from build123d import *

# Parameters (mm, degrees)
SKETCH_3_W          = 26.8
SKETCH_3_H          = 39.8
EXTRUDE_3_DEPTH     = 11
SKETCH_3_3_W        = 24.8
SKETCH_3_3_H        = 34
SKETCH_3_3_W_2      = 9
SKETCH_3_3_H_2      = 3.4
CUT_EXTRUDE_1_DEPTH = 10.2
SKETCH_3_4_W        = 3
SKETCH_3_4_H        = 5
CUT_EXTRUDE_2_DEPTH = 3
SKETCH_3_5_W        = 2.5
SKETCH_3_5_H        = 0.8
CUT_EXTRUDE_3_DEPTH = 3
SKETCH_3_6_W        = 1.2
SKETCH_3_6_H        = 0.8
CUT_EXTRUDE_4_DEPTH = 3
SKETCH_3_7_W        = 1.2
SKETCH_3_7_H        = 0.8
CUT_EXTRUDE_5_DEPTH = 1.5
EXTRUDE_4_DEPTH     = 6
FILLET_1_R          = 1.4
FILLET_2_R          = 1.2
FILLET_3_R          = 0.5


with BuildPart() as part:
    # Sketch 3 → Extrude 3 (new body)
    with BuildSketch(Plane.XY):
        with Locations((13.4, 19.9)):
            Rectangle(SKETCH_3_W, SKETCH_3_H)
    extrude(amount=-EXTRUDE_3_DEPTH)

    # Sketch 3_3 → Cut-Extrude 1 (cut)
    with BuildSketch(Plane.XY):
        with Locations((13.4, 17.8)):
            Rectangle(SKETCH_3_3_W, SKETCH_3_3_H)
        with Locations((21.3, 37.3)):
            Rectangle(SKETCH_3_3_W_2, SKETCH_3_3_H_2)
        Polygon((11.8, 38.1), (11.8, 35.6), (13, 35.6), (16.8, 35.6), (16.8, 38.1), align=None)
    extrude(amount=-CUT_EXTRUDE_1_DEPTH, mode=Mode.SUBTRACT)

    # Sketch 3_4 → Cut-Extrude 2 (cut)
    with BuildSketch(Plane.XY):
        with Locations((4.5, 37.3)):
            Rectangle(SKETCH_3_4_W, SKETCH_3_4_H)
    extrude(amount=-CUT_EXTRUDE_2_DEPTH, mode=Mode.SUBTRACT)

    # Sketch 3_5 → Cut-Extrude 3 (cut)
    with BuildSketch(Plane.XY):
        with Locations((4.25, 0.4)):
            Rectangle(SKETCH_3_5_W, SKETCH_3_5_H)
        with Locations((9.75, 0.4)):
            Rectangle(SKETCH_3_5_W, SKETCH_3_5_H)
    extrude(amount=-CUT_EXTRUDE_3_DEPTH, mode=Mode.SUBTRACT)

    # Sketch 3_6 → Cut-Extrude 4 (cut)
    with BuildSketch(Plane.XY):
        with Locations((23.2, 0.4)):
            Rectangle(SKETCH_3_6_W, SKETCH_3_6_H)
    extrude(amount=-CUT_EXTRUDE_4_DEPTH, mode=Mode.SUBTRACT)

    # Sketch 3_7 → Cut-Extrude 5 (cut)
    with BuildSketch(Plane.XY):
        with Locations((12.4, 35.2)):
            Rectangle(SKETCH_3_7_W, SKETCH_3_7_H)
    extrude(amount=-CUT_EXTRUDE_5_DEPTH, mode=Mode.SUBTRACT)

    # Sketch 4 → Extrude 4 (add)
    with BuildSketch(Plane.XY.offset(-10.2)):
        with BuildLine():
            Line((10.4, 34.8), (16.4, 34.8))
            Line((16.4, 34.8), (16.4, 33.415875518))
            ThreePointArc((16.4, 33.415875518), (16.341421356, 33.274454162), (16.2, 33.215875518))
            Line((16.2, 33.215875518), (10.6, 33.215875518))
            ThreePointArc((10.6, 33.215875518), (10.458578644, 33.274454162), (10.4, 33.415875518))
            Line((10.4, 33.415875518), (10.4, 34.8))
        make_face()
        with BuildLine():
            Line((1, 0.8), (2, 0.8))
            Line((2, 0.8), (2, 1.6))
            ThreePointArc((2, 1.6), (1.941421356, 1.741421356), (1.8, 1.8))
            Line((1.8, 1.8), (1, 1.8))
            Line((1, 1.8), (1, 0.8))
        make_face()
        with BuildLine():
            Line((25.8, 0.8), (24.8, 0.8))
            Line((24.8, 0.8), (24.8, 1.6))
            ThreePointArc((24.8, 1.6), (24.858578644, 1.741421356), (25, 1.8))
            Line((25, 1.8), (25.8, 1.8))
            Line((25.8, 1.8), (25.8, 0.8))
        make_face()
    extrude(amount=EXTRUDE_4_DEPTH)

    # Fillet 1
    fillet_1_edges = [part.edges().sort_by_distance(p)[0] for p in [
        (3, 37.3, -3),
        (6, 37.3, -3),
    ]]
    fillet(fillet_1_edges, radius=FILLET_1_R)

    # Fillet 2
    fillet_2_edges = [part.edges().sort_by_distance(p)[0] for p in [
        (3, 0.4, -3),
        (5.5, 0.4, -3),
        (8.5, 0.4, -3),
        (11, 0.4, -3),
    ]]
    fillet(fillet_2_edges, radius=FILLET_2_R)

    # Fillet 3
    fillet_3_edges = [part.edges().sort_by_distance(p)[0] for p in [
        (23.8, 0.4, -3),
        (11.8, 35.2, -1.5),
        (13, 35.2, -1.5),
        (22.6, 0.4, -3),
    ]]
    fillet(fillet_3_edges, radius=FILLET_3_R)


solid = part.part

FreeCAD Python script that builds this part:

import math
import FreeCAD as App
import Part
import Sketcher


def edges_at(feature, points):
    """Names of the edges that pass closest to the given points."""
    edges = feature.Shape.Edges
    near = lambda p: min(range(len(edges)), key=lambda i: edges[i].distToShape(Part.Vertex(*p))[0])
    return sorted({f"Edge{near(p) + 1}" for p in points})


def add_polygon(sketch, points):
    """Adds a closed chain of lines whose ends are joined by coincident constraints."""
    first, n = sketch.GeometryCount, len(points)
    for a, b in zip(points, points[1:] + points[:1]):
        sketch.addGeometry(Part.LineSegment(App.Vector(*a, 0), App.Vector(*b, 0)), False)
    for i in range(n):
        sketch.addConstraint(Sketcher.Constraint("Coincident", first + i, 2, first + (i + 1) % n, 1))

doc = App.newDocument("Part")
body = doc.addObject("PartDesign::Body", "Body")

sketch1 = body.newObject("Sketcher::SketchObject", "Sketch")
sketch1.AttachmentSupport = (doc.getObject("XY_Plane"), [""])
sketch1.MapMode = "FlatFace"
add_polygon(sketch1, [(0, 39.8), (0, 0), (26.8, 0), (26.8, 39.8)])
sketch1.addConstraint([
    Sketcher.Constraint("Vertical", 0),
    Sketcher.Constraint("Horizontal", 1),
    Sketcher.Constraint("Vertical", 2),
    Sketcher.Constraint("Horizontal", 3),
    Sketcher.Constraint("Coincident", 0, 2, -1, 1),
    Sketcher.Constraint("DistanceX", 1, 1, 1, 2, 26.8),
    Sketcher.Constraint("DistanceY", 0, 2, 0, 1, 39.8),
])
pad1 = body.newObject("PartDesign::Pad", "Pad")
pad1.Profile = sketch1
pad1.Length = 11
pad1.Reversed = True

sketch2 = body.newObject("Sketcher::SketchObject", "Sketch001")
sketch2.AttachmentSupport = (doc.getObject("XY_Plane"), [""])
sketch2.MapMode = "FlatFace"
add_polygon(sketch2, [(1, 34.8), (1, 0.8), (25.8, 0.8), (25.8, 34.8)])
add_polygon(sketch2, [(16.8, 39), (16.8, 38.1), (11.8, 38.1), (11.8, 35.6), (25.8, 35.6), (25.8, 39)])
sketch2.addConstraint([
    Sketcher.Constraint("Vertical", 0),
    Sketcher.Constraint("Horizontal", 1),
    Sketcher.Constraint("Vertical", 2),
    Sketcher.Constraint("Horizontal", 3),
    Sketcher.Constraint("Vertical", 4),
    Sketcher.Constraint("Horizontal", 5),
    Sketcher.Constraint("Vertical", 6),
    Sketcher.Constraint("Horizontal", 7),
    Sketcher.Constraint("Vertical", 8),
    Sketcher.Constraint("Horizontal", 9),
    Sketcher.Constraint("Vertical", 2, 2, 7, 2),
    Sketcher.Constraint("DistanceX", 5, 2, 5, 1, 5.0),
    Sketcher.Constraint("DistanceX", 7, 1, 7, 2, 14.0),
    Sketcher.Constraint("DistanceY", 0, 2, 0, 1, 34.0),
    Sketcher.Constraint("DistanceX", 1, 1, 1, 2, 24.8),
    Sketcher.Constraint("DistanceY", 4, 2, 4, 1, 0.9),
    Sketcher.Constraint("DistanceY", 6, 2, 6, 1, 2.5),
    Sketcher.Constraint("DistanceX", -1, 1, 0, 2, 1.0),
    Sketcher.Constraint("DistanceY", -1, 1, 8, 2, 39.0),
    Sketcher.Constraint("DistanceY", -1, 1, 0, 2, 0.8),
])
pocket1 = body.newObject("PartDesign::Pocket", "Pocket")
pocket1.Profile = sketch2
pocket1.Length = 10.2

sketch3 = body.newObject("Sketcher::SketchObject", "Sketch002")
sketch3.AttachmentSupport = (doc.getObject("XY_Plane"), [""])
sketch3.MapMode = "FlatFace"
add_polygon(sketch3, [(3, 39.8), (3, 34.8), (6, 34.8), (6, 39.8)])
sketch3.addConstraint([
    Sketcher.Constraint("Vertical", 0),
    Sketcher.Constraint("Horizontal", 1),
    Sketcher.Constraint("Vertical", 2),
    Sketcher.Constraint("Horizontal", 3),
    Sketcher.Constraint("DistanceX", 1, 1, 1, 2, 3.0),
    Sketcher.Constraint("DistanceY", 0, 2, 0, 1, 5.0),
    Sketcher.Constraint("DistanceX", -1, 1, 0, 2, 3.0),
    Sketcher.Constraint("DistanceY", -1, 1, 0, 2, 34.8),
])
pocket2 = body.newObject("PartDesign::Pocket", "Pocket001")
pocket2.Profile = sketch3
pocket2.Length = 3

sketch4 = body.newObject("Sketcher::SketchObject", "Sketch003")
sketch4.AttachmentSupport = (doc.getObject("XY_Plane"), [""])
sketch4.MapMode = "FlatFace"
add_polygon(sketch4, [(3, 0.8), (3, 0), (5.5, 0), (5.5, 0.8)])
add_polygon(sketch4, [(8.5, 0.8), (8.5, 0), (11, 0), (11, 0.8)])
sketch4.addConstraint([
    Sketcher.Constraint("Vertical", 0),
    Sketcher.Constraint("Horizontal", 1),
    Sketcher.Constraint("Vertical", 2),
    Sketcher.Constraint("Horizontal", 3),
    Sketcher.Constraint("Vertical", 4),
    Sketcher.Constraint("Horizontal", 5),
    Sketcher.Constraint("Vertical", 6),
    Sketcher.Constraint("Horizontal", 7),
    Sketcher.Constraint("PointOnObject", 0, 2, -1),
    Sketcher.Constraint("PointOnObject", 4, 2, -1),
    Sketcher.Constraint("Horizontal", 3, 2, 6, 2),
    Sketcher.Constraint("Equal", 3, 5),
    Sketcher.Constraint("DistanceX", 1, 1, 1, 2, 2.5),
    Sketcher.Constraint("DistanceY", 0, 2, 0, 1, 0.8),
    Sketcher.Constraint("DistanceX", -1, 1, 0, 2, 3.0),
    Sketcher.Constraint("DistanceX", -1, 1, 5, 2, 11.0),
])
pocket3 = body.newObject("PartDesign::Pocket", "Pocket002")
pocket3.Profile = sketch4
pocket3.Length = 3

sketch5 = body.newObject("Sketcher::SketchObject", "Sketch004")
sketch5.AttachmentSupport = (doc.getObject("XY_Plane"), [""])
sketch5.MapMode = "FlatFace"
add_polygon(sketch5, [(22.6, 0.8), (22.6, 0), (23.8, 0), (23.8, 0.8)])
sketch5.addConstraint([
    Sketcher.Constraint("Vertical", 0),
    Sketcher.Constraint("Horizontal", 1),
    Sketcher.Constraint("Vertical", 2),
    Sketcher.Constraint("Horizontal", 3),
    Sketcher.Constraint("PointOnObject", 0, 2, -1),
    Sketcher.Constraint("DistanceX", 1, 1, 1, 2, 1.2),
    Sketcher.Constraint("DistanceY", 0, 2, 0, 1, 0.8),
    Sketcher.Constraint("DistanceX", -1, 1, 0, 2, 22.6),
])
pocket4 = body.newObject("PartDesign::Pocket", "Pocket003")
pocket4.Profile = sketch5
pocket4.Length = 3

sketch6 = body.newObject("Sketcher::SketchObject", "Sketch005")
sketch6.AttachmentSupport = (doc.getObject("XY_Plane"), [""])
sketch6.MapMode = "FlatFace"
add_polygon(sketch6, [(11.8, 35.6), (11.8, 34.8), (13, 34.8), (13, 35.6)])
sketch6.addConstraint([
    Sketcher.Constraint("Vertical", 0),
    Sketcher.Constraint("Horizontal", 1),
    Sketcher.Constraint("Vertical", 2),
    Sketcher.Constraint("Horizontal", 3),
    Sketcher.Constraint("DistanceX", 1, 1, 1, 2, 1.2),
    Sketcher.Constraint("DistanceY", 0, 2, 0, 1, 0.8),
    Sketcher.Constraint("DistanceX", -1, 1, 1, 2, 13.0),
    Sketcher.Constraint("DistanceY", -1, 1, 0, 2, 34.8),
])
pocket5 = body.newObject("PartDesign::Pocket", "Pocket004")
pocket5.Profile = sketch6
pocket5.Length = 1.5

sketch7 = body.newObject("Sketcher::SketchObject", "Sketch006")
sketch7.AttachmentSupport = (doc.getObject("XY_Plane"), [""])
sketch7.MapMode = "FlatFace"
sketch7.AttachmentOffset = App.Placement(App.Vector(0, 0, -10.2), App.Rotation())
sketch7.addGeometry([
    Part.LineSegment(App.Vector(16.4, 34.8, 0), App.Vector(10.4, 34.8, 0)),
    Part.LineSegment(App.Vector(10.4, 34.8, 0), App.Vector(10.4, 33.415876, 0)),
    Part.ArcOfCircle(Part.Circle(App.Vector(10.6, 33.415876, 0), App.Vector(0, 0, 1), 0.2), math.radians(-180), math.radians(-90)),
    Part.LineSegment(App.Vector(10.6, 33.215876, 0), App.Vector(16.2, 33.215876, 0)),
    Part.ArcOfCircle(Part.Circle(App.Vector(16.2, 33.415876, 0), App.Vector(0, 0, 1), 0.2), math.radians(-90), math.radians(0)),
    Part.LineSegment(App.Vector(16.4, 33.415876, 0), App.Vector(16.4, 34.8, 0)),
    Part.LineSegment(App.Vector(1, 0.8, 0), App.Vector(2, 0.8, 0)),
    Part.LineSegment(App.Vector(2, 0.8, 0), App.Vector(2, 1.6, 0)),
    Part.ArcOfCircle(Part.Circle(App.Vector(1.8, 1.6, 0), App.Vector(0, 0, 1), 0.2), math.radians(0), math.radians(90)),
    Part.LineSegment(App.Vector(1.8, 1.8, 0), App.Vector(1, 1.8, 0)),
    Part.LineSegment(App.Vector(1, 1.8, 0), App.Vector(1, 0.8, 0)),
    Part.LineSegment(App.Vector(24.8, 0.8, 0), App.Vector(25.8, 0.8, 0)),
    Part.LineSegment(App.Vector(25.8, 0.8, 0), App.Vector(25.8, 1.8, 0)),
    Part.LineSegment(App.Vector(25.8, 1.8, 0), App.Vector(25, 1.8, 0)),
    Part.ArcOfCircle(Part.Circle(App.Vector(25, 1.6, 0), App.Vector(0, 0, 1), 0.2), math.radians(90), math.radians(180)),
    Part.LineSegment(App.Vector(24.8, 1.6, 0), App.Vector(24.8, 0.8, 0)),
], False)
sketch7.addConstraint([
    Sketcher.Constraint("Coincident", 0, 2, 1, 1),
    Sketcher.Constraint("Tangent", 1, 2, 2, 1),
    Sketcher.Constraint("Tangent", 2, 2, 3, 1),
    Sketcher.Constraint("Tangent", 3, 2, 4, 1),
    Sketcher.Constraint("Tangent", 4, 2, 5, 1),
    Sketcher.Constraint("Coincident", 5, 2, 0, 1),
    Sketcher.Constraint("Coincident", 6, 2, 7, 1),
    Sketcher.Constraint("Tangent", 7, 2, 8, 1),
    Sketcher.Constraint("Tangent", 8, 2, 9, 1),
    Sketcher.Constraint("Coincident", 9, 2, 10, 1),
    Sketcher.Constraint("Coincident", 10, 2, 6, 1),
    Sketcher.Constraint("Coincident", 11, 2, 12, 1),
    Sketcher.Constraint("Coincident", 12, 2, 13, 1),
    Sketcher.Constraint("Tangent", 13, 2, 14, 1),
    Sketcher.Constraint("Tangent", 14, 2, 15, 1),
    Sketcher.Constraint("Coincident", 15, 2, 11, 1),
    Sketcher.Constraint("Horizontal", 0),
    Sketcher.Constraint("Vertical", 1),
    Sketcher.Constraint("Horizontal", 3),
    Sketcher.Constraint("Vertical", 5),
    Sketcher.Constraint("Horizontal", 6),
    Sketcher.Constraint("Vertical", 7),
    Sketcher.Constraint("Horizontal", 9),
    Sketcher.Constraint("Vertical", 10),
    Sketcher.Constraint("Horizontal", 11),
    Sketcher.Constraint("Vertical", 12),
    Sketcher.Constraint("Horizontal", 13),
    Sketcher.Constraint("Vertical", 15),
    Sketcher.Constraint("Equal", 2, 4),
    Sketcher.Constraint("Equal", 4, 8),
    Sketcher.Constraint("Equal", 8, 14),
    Sketcher.Constraint("Horizontal", 8, 3, 14, 3),
    Sketcher.Constraint("Horizontal", 10, 2, 11, 2),
    Sketcher.Constraint("Equal", 6, 11),
    Sketcher.Constraint("Equal", 13, 7),
    Sketcher.Constraint("Radius", 2, 0.2),
    Sketcher.Constraint("DistanceX", 0, 2, 0, 1, 6.0),
    Sketcher.Constraint("DistanceX", 6, 1, 6, 2, 1.0),
    Sketcher.Constraint("DistanceX", -1, 1, 14, 3, 25.0),
    Sketcher.Constraint("DistanceX", -1, 1, 6, 2, 2.0),
    Sketcher.Constraint("DistanceX", -1, 1, 2, 3, 10.6),
    Sketcher.Constraint("DistanceY", -1, 1, 8, 3, 1.6),
    Sketcher.Constraint("DistanceY", -1, 1, 0, 2, 34.8),
    Sketcher.Constraint("DistanceY", 1, 2, 1, 1, 1.384124),
])
pad2 = body.newObject("PartDesign::Pad", "Pad001")
pad2.Profile = sketch7
pad2.Length = 6
doc.recompute()

fillet = body.newObject("PartDesign::Fillet", "Fillet")
fillet.Base = (pad2, edges_at(pad2, [(3, 37.3, -3), (6, 37.3, -3)]))
fillet.Radius = 1.4
doc.recompute()

fillet2 = body.newObject("PartDesign::Fillet", "Fillet001")
fillet2.Base = (fillet, edges_at(fillet, [
    (3, 0.4, -3),
    (5.5, 0.4, -3),
    (8.5, 0.4, -3),
    (11, 0.4, -3),
]))
fillet2.Radius = 1.2
doc.recompute()

fillet3 = body.newObject("PartDesign::Fillet", "Fillet002")
fillet3.Base = (fillet2, edges_at(fillet2, [
    (23.8, 0.4, -3),
    (11.8, 35.2, -1.5),
    (13, 35.2, -1.5),
    (22.6, 0.4, -3),
]))
fillet3.Radius = 0.5

doc.recompute()
